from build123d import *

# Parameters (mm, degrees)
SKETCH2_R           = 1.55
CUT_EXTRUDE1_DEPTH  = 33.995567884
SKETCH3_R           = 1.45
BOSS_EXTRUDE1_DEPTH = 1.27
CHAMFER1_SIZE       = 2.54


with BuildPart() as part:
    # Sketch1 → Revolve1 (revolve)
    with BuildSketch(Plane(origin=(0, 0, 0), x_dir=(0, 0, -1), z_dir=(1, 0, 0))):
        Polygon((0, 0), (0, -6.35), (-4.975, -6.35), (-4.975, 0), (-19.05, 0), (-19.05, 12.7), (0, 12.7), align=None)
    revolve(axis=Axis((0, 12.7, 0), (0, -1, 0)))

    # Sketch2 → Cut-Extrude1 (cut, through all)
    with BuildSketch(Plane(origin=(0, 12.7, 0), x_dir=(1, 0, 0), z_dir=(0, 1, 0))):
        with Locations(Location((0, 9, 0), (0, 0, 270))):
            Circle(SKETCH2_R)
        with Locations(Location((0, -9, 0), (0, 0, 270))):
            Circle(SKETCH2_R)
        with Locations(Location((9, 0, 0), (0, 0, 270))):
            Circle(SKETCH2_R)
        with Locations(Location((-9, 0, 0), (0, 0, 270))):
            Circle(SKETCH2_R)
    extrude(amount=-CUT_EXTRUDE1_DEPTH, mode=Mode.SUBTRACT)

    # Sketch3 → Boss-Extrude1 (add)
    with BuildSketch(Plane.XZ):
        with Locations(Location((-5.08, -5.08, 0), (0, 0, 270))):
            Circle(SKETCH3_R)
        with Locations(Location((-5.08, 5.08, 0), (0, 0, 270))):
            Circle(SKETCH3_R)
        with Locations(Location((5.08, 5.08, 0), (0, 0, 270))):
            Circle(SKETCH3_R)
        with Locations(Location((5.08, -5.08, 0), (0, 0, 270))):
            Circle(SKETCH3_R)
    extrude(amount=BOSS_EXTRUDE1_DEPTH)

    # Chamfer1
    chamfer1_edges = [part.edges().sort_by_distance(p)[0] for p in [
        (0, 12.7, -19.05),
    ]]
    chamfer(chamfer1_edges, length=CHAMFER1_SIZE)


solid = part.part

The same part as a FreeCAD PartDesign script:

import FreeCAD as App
import Part
import Sketcher
Q = App.Units.Quantity


def edges_at(feature, points):
    """Names of the edges that pass closest to the given points."""
    edges = feature.Shape.Edges
    near = lambda p: min(range(len(edges)), key=lambda i: edges[i].distToShape(Part.Vertex(*p))[0])
    return sorted({f"Edge{near(p) + 1}" for p in points})

doc = App.newDocument("Part")
params = doc.addObject("Spreadsheet::Sheet", "Params")
for row, (alias, value) in enumerate([
    ("sketch1_width", "0.5 in"),
    ("sketch1_width2", "0.75 in"),
    ("revolution_angle", "360 deg"),
    ("pad1_length", "0.05 in"),
    ("chamfer_size", "0.1 in"),
], start=1):
    params.set(f"A{row}", alias)
    params.set(f"B{row}", "=" + value)
    params.setAlias(f"B{row}", alias)

body = doc.addObject("PartDesign::Body", "Body")

# Sketch on YZ plane
sketch1 = doc.addObject("Sketcher::SketchObject", "Sketch")
body.addObject(sketch1)
sketch1.AttachmentSupport = (doc.YZ_Plane, [""])
sketch1.MapMode = "FlatFace"
sketch1.addGeometry(Part.LineSegment(App.Vector(-6.3, 0, 0), App.Vector(12.7, 0, 0)), False)
sketch1.addGeometry(Part.LineSegment(App.Vector(12.7, 0, 0), App.Vector(12.7, 19.1, 0)), False)
sketch1.addGeometry(Part.LineSegment(App.Vector(12.7, 19.1, 0), App.Vector(0, 19.1, 0)), False)
sketch1.addGeometry(Part.LineSegment(App.Vector(0, 19.1, 0), App.Vector(0, 5, 0)), False)
sketch1.addGeometry(Part.LineSegment(App.Vector(0, 5, 0), App.Vector(-6.3, 5, 0)), False)
sketch1.addGeometry(Part.LineSegment(App.Vector(-6.3, 5, 0), App.Vector(-6.3, 0, 0)), False)
sketch1.addConstraint(Sketcher.Constraint("Coincident", 0, 2, 1, 1))
sketch1.addConstraint(Sketcher.Constraint("Coincident", 1, 2, 2, 1))
sketch1.addConstraint(Sketcher.Constraint("Coincident", 2, 2, 3, 1))
sketch1.addConstraint(Sketcher.Constraint("Coincident", 3, 2, 4, 1))
sketch1.addConstraint(Sketcher.Constraint("Coincident", 4, 2, 5, 1))
sketch1.addConstraint(Sketcher.Constraint("Coincident", 5, 2, 0, 1))
sketch1.addConstraint(Sketcher.Constraint("Horizontal", 0))
sketch1.addConstraint(Sketcher.Constraint("Vertical", 1))
sketch1.addConstraint(Sketcher.Constraint("Horizontal", 2))
sketch1.addConstraint(Sketcher.Constraint("Vertical", 3))
sketch1.addConstraint(Sketcher.Constraint("Horizontal", 4))
sketch1.addConstraint(Sketcher.Constraint("Vertical", 5))
sketch1.addConstraint(Sketcher.Constraint("PointOnObject", 0, 2, -1))
sketch1.addConstraint(Sketcher.Constraint("PointOnObject", 2, 2, -2))
sketch1.addConstraint(Sketcher.Constraint("Equal", 0, 1))
sketch1.addConstraint(Sketcher.Constraint("DistanceX", 2, 2, 2, 1, Q("0.5 in")))
sketch1.addConstraint(Sketcher.Constraint("DistanceX", 0, 1, 0, 2, Q("0.75 in")))
sketch1.addConstraint(Sketcher.Constraint("DistanceY", 3, 2, 3, 1, Q("14.075 mm")))
sketch1.setExpression("Constraints[15]", "Params.sketch1_width")
sketch1.setExpression("Constraints[16]", "Params.sketch1_width2")
revolution = doc.addObject("PartDesign::Revolution", "Revolution")
body.addObject(revolution)
revolution.Profile = sketch1
revolution.ReferenceAxis = (sketch1, ["H_Axis"])
revolution.setExpression("Angle", "Params.revolution_angle")

# Sketch on XZ plane
sketch2 = doc.addObject("Sketcher::SketchObject", "Sketch001")
body.addObject(sketch2)
sketch2.AttachmentSupport = (doc.XZ_Plane, [""])
sketch2.MapMode = "FlatFace"
sketch2.AttachmentOffset = App.Placement(App.Vector(0, 0, -0.5 * 25.4), App.Rotation())
sketch2.addGeometry(Part.Circle(App.Vector(0, -9, 0), App.Vector(0, 0, 1), 1.6), False)
sketch2.addGeometry(Part.Circle(App.Vector(0, 9, 0), App.Vector(0, 0, 1), 1.6), False)
sketch2.addGeometry(Part.Circle(App.Vector(9, 0, 0), App.Vector(0, 0, 1), 1.6), False)
sketch2.addGeometry(Part.Circle(App.Vector(-9, 0, 0), App.Vector(0, 0, 1), 1.6), False)
sketch2.addConstraint(Sketcher.Constraint("Equal", 0, 1))
sketch2.addConstraint(Sketcher.Constraint("Equal", 1, 2))
sketch2.addConstraint(Sketcher.Constraint("Equal", 2, 3))
sketch2.addConstraint(Sketcher.Constraint("Symmetric", 0, 3, 1, 3, -1, 1))
sketch2.addConstraint(Sketcher.Constraint("Symmetric", 2, 3, 3, 3, -1, 1))
sketch2.addConstraint(Sketcher.Constraint("PointOnObject", 0, 3, -2))
sketch2.addConstraint(Sketcher.Constraint("PointOnObject", 2, 3, -1))
sketch2.addConstraint(Sketcher.Constraint("Diameter", 0, Q("3.1 mm")))
sketch2.addConstraint(Sketcher.Constraint("DistanceY", 0, 3, -1, 1, Q("9 mm")))
sketch2.addConstraint(Sketcher.Constraint("DistanceX", -1, 1, 2, 3, Q("9 mm")))
pocket1 = doc.addObject("PartDesign::Pocket", "Pocket")
body.addObject(pocket1)
pocket1.Profile = sketch2
pocket1.Type = "ThroughAll"
pocket1.Reversed = True

# Sketch on XZ plane
sketch3 = doc.addObject("Sketcher::SketchObject", "Sketch002")
body.addObject(sketch3)
sketch3.AttachmentSupport = (doc.XZ_Plane, [""])
sketch3.MapMode = "FlatFace"
sketch3.addGeometry(Part.Circle(App.Vector(-5.1, -5.1, 0), App.Vector(0, 0, 1), 1.4), False)
sketch3.addGeometry(Part.Circle(App.Vector(-5.1, 5.1, 0), App.Vector(0, 0, 1), 1.4), False)
sketch3.addGeometry(Part.Circle(App.Vector(5.1, 5.1, 0), App.Vector(0, 0, 1), 1.4), False)
sketch3.addGeometry(Part.Circle(App.Vector(5.1, -5.1, 0), App.Vector(0, 0, 1), 1.4), False)
sketch3.addConstraint(Sketcher.Constraint("Equal", 0, 1))
sketch3.addConstraint(Sketcher.Constraint("Equal", 1, 2))
sketch3.addConstraint(Sketcher.Constraint("Equal", 2, 3))
sketch3.addConstraint(Sketcher.Constraint("Symmetric", 0, 3, 2, 3, -1, 1))
sketch3.addConstraint(Sketcher.Constraint("Symmetric", 1, 3, 3, 3, -1, 1))
sketch3.addConstraint(Sketcher.Constraint("Symmetric", 1, 3, 2, 3, -2))
sketch3.addConstraint(Sketcher.Constraint("DistanceX", 0, 3, -1, 1, Q("0.2 in")))
sketch3.addConstraint(Sketcher.Constraint("DistanceY", 0, 3, -1, 1, Q("0.2 in")))
sketch3.addConstraint(Sketcher.Constraint("Diameter", 0, Q("2.9 mm")))
pad1 = doc.addObject("PartDesign::Pad", "Pad")
body.addObject(pad1)
pad1.Profile = sketch3
pad1.setExpression("Length", "Params.pad1_length")
doc.recompute()

chamfer = doc.addObject("PartDesign::Chamfer", "Chamfer")
body.addObject(chamfer)
chamfer.Base = (pad1, edges_at(pad1, [(0, 12.7, -19.05)]))
chamfer.setExpression("Size", "Params.chamfer_size")

doc.recompute()
